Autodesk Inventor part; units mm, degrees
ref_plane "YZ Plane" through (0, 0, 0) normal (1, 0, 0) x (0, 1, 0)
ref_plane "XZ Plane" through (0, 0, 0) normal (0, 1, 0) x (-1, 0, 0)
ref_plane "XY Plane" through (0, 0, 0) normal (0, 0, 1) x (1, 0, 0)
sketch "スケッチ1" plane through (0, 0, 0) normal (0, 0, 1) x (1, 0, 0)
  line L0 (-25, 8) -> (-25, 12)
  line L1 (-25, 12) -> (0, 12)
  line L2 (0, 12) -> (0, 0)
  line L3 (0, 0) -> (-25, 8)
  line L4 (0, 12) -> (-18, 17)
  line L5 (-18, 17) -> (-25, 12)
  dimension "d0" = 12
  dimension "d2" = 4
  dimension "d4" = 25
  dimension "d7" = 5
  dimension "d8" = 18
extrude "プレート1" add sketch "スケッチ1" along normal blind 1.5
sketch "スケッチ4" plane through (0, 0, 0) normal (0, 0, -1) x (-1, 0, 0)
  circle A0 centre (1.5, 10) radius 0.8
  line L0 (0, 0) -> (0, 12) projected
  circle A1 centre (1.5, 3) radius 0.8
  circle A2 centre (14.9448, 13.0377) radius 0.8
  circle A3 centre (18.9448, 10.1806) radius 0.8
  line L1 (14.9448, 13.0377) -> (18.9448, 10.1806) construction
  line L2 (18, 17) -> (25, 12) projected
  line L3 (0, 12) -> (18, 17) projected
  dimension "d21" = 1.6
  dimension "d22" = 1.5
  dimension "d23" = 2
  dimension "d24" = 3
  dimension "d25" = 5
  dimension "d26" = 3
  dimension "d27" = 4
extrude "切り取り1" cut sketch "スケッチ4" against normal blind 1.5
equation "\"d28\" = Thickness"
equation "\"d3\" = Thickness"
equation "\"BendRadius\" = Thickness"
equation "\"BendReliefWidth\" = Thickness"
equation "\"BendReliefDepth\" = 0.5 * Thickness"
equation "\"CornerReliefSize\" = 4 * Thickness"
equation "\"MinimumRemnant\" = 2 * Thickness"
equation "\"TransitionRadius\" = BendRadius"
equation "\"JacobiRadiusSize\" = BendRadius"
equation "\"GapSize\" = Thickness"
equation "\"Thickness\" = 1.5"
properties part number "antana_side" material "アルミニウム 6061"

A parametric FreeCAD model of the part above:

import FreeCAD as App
import Part
import Sketcher
from FreeCAD import Vector
Q = App.Units.Quantity

doc = App.newDocument("Part")
params = doc.addObject("Spreadsheet::Sheet", "Params")
for row, (alias, value) in enumerate([
    ("sketch1_height", "4 mm"),
    ("sketch1_height2", "12 mm"),
    ("pad1_length", "1.5 mm"),
    ("sketch2_diameter", "1.6 mm"),
    ("pocket1_length", "1.5 mm"),
], start=1):
    params.set(f"A{row}", alias)
    params.set(f"B{row}", "=" + value)
    params.setAlias(f"B{row}", alias)

body = doc.addObject("PartDesign::Body", "Body")

sketch1 = doc.addObject("Sketcher::SketchObject", "Sketch")
body.addObject(sketch1)
sketch1.AttachmentSupport = (doc.XY_Plane, [""])
sketch1.MapMode = "FlatFace"
sketch1.addGeometry([
    Part.LineSegment(Vector(-25, 12, 0), Vector(-25, 8, 0)),
    Part.LineSegment(Vector(-25, 8, 0), Vector(0, 0, 0)),
    Part.LineSegment(Vector(0, 0, 0), Vector(0, 12, 0)),
    Part.LineSegment(Vector(0, 12, 0), Vector(-18, 17, 0)),
    Part.LineSegment(Vector(-18, 17, 0), Vector(-25, 12, 0)),
], False)
sketch1.addConstraint([
    Sketcher.Constraint("Coincident", 0, 2, 1, 1),
    Sketcher.Constraint("Coincident", 1, 2, 2, 1),
    Sketcher.Constraint("Coincident", 2, 2, 3, 1),
    Sketcher.Constraint("Coincident", 3, 2, 4, 1),
    Sketcher.Constraint("Coincident", 4, 2, 0, 1),
    Sketcher.Constraint("Vertical", 0),
    Sketcher.Constraint("Vertical", 2),
    Sketcher.Constraint("Coincident", 1, 2, -1, 1),
    Sketcher.Constraint("Horizontal", 2, 2, 4, 2),
    Sketcher.Constraint("DistanceY", 0, 2, 0, 1, Q("4 mm")),
    Sketcher.Constraint("DistanceY", 2, 1, 2, 2, Q("12 mm")),
    Sketcher.Constraint("DistanceX", 0, 2, -1, 1, Q("25 mm")),
    Sketcher.Constraint("DistanceX", 3, 2, -1, 1, Q("18 mm")),
    Sketcher.Constraint("DistanceY", 2, 2, 3, 2, Q("5 mm")),
])
sketch1.setExpression("Constraints[9]", "Params.sketch1_height")
sketch1.setExpression("Constraints[10]", "Params.sketch1_height2")
pad1 = doc.addObject("PartDesign::Pad", "Pad")
body.addObject(pad1)
pad1.Profile = sketch1
pad1.setExpression("Length", "Params.pad1_length")

sketch2 = doc.addObject("Sketcher::SketchObject", "Sketch001")
body.addObject(sketch2)
sketch2.AttachmentSupport = (doc.XY_Plane, [""])
sketch2.MapMode = "FlatFace"
sketch2.addGeometry([
    Part.Circle(Vector(-1.5, 10, 0), Vector(0, 0, 1), 0.8),
    Part.Circle(Vector(-1.5, 3, 0), Vector(0, 0, 1), 0.8),
    Part.Circle(Vector(-14.9448, 13.0377, 0), Vector(0, 0, 1), 0.8),
    Part.Circle(Vector(-18.9448, 10.1806, 0), Vector(0, 0, 1), 0.8),
], False)
sketch2.addConstraint([
    Sketcher.Constraint("Equal", 0, 1),
    Sketcher.Constraint("Equal", 1, 2),
    Sketcher.Constraint("Equal", 2, 3),
    Sketcher.Constraint("Vertical", 0, 3, 1, 3),
    Sketcher.Constraint("Diameter", 0, Q("1.6 mm")),
    Sketcher.Constraint("DistanceY", -1, 1, 1, 3, Q("3 mm")),
    Sketcher.Constraint("DistanceX", 3, 3, 2, 3, Q("4 mm")),
    Sketcher.Constraint("DistanceX", 0, 3, -1, 1, Q("1.5 mm")),
    Sketcher.Constraint("DistanceY", -1, 1, 0, 3, Q("10 mm")),
    Sketcher.Constraint("DistanceY", 3, 3, 2, 3, Q("2.857 mm")),
    Sketcher.Constraint("DistanceX", 2, 3, -1, 1, Q("14.9448 mm")),
    Sketcher.Constraint("DistanceY", -1, 1, 2, 3, Q("13.0377 mm")),
])
sketch2.setExpression("Constraints[4]", "Params.sketch2_diameter")
pocket1 = doc.addObject("PartDesign::Pocket", "Pocket")
body.addObject(pocket1)
pocket1.Profile = sketch2
pocket1.setExpression("Length", "Params.pocket1_length")
pocket1.Reversed = True

doc.recompute()
